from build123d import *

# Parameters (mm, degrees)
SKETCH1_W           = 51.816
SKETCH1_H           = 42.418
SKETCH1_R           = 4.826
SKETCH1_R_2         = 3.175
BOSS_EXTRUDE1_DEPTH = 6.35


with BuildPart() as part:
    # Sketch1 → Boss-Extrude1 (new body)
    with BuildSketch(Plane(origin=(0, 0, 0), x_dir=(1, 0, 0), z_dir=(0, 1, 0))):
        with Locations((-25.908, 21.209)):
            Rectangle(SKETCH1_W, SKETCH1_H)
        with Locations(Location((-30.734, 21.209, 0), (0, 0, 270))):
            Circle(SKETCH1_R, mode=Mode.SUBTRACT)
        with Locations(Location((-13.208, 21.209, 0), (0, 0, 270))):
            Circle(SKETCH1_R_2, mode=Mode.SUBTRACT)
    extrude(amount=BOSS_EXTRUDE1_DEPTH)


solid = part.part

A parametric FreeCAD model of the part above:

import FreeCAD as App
import Part
import Sketcher
from FreeCAD import Vector
Q = App.Units.Quantity

doc = App.newDocument("Part")
body = doc.addObject("PartDesign::Body", "Body")

# Sketch on XZ plane
sketch1 = doc.addObject("Sketcher::SketchObject", "Sketch")
body.addObject(sketch1)
sketch1.AttachmentSupport = (doc.XZ_Plane, [""])
sketch1.MapMode = "FlatFace"
sketch1.addGeometry([
    Part.LineSegment(Vector(-51.8, -42.4, 0), Vector(-51.8, 0, 0)),  # 0
    Part.LineSegment(Vector(-51.8, 0, 0), Vector(0, 0, 0)),  # 1
    Part.LineSegment(Vector(0, 0, 0), Vector(0, -42.4, 0)),  # 2
    Part.LineSegment(Vector(0, -42.4, 0), Vector(-51.8, -42.4, 0)),  # 3
    Part.Circle(Vector(-30.7, -21.2, 0), Vector(0, 0, 1), 4.8),  # 4
    Part.Circle(Vector(-13.2, -21.2, 0), Vector(0, 0, 1), 3.2),  # 5
], False)
sketch1.addConstraint([
    Sketcher.Constraint("Coincident", 0, 2, 1, 1),
    Sketcher.Constraint("Coincident", 1, 2, 2, 1),
    Sketcher.Constraint("Coincident", 2, 2, 3, 1),
    Sketcher.Constraint("Coincident", 3, 2, 0, 1),
    Sketcher.Constraint("Vertical", 0),
    Sketcher.Constraint("Horizontal", 1),
    Sketcher.Constraint("Vertical", 2),
    Sketcher.Constraint("Horizontal", 3),
    Sketcher.Constraint("Coincident", 1, 2, -1, 1),
    Sketcher.Constraint("Horizontal", 4, 3, 5, 3),
    Sketcher.Constraint("Diameter", 4, Q("0.38 in")),
    Sketcher.Constraint("Diameter", 5, Q("0.25 in")),
    Sketcher.Constraint("DistanceX", 1, 1, 1, 2, Q("2.04 in")),
    Sketcher.Constraint("DistanceY", 0, 1, 0, 2, Q("1.67 in")),
    Sketcher.Constraint("DistanceX", 4, 3, -1, 1, Q("1.21 in")),
    Sketcher.Constraint("DistanceX", 5, 3, -1, 1, Q("0.52 in")),
    Sketcher.Constraint("DistanceY", 4, 3, -1, 1, Q("0.835 in")),
])
pad1 = doc.addObject("PartDesign::Pad", "Pad")
body.addObject(pad1)
pad1.Profile = sketch1
pad1.Length = Q("0.25 in")
pad1.Reversed = True

doc.recompute()
